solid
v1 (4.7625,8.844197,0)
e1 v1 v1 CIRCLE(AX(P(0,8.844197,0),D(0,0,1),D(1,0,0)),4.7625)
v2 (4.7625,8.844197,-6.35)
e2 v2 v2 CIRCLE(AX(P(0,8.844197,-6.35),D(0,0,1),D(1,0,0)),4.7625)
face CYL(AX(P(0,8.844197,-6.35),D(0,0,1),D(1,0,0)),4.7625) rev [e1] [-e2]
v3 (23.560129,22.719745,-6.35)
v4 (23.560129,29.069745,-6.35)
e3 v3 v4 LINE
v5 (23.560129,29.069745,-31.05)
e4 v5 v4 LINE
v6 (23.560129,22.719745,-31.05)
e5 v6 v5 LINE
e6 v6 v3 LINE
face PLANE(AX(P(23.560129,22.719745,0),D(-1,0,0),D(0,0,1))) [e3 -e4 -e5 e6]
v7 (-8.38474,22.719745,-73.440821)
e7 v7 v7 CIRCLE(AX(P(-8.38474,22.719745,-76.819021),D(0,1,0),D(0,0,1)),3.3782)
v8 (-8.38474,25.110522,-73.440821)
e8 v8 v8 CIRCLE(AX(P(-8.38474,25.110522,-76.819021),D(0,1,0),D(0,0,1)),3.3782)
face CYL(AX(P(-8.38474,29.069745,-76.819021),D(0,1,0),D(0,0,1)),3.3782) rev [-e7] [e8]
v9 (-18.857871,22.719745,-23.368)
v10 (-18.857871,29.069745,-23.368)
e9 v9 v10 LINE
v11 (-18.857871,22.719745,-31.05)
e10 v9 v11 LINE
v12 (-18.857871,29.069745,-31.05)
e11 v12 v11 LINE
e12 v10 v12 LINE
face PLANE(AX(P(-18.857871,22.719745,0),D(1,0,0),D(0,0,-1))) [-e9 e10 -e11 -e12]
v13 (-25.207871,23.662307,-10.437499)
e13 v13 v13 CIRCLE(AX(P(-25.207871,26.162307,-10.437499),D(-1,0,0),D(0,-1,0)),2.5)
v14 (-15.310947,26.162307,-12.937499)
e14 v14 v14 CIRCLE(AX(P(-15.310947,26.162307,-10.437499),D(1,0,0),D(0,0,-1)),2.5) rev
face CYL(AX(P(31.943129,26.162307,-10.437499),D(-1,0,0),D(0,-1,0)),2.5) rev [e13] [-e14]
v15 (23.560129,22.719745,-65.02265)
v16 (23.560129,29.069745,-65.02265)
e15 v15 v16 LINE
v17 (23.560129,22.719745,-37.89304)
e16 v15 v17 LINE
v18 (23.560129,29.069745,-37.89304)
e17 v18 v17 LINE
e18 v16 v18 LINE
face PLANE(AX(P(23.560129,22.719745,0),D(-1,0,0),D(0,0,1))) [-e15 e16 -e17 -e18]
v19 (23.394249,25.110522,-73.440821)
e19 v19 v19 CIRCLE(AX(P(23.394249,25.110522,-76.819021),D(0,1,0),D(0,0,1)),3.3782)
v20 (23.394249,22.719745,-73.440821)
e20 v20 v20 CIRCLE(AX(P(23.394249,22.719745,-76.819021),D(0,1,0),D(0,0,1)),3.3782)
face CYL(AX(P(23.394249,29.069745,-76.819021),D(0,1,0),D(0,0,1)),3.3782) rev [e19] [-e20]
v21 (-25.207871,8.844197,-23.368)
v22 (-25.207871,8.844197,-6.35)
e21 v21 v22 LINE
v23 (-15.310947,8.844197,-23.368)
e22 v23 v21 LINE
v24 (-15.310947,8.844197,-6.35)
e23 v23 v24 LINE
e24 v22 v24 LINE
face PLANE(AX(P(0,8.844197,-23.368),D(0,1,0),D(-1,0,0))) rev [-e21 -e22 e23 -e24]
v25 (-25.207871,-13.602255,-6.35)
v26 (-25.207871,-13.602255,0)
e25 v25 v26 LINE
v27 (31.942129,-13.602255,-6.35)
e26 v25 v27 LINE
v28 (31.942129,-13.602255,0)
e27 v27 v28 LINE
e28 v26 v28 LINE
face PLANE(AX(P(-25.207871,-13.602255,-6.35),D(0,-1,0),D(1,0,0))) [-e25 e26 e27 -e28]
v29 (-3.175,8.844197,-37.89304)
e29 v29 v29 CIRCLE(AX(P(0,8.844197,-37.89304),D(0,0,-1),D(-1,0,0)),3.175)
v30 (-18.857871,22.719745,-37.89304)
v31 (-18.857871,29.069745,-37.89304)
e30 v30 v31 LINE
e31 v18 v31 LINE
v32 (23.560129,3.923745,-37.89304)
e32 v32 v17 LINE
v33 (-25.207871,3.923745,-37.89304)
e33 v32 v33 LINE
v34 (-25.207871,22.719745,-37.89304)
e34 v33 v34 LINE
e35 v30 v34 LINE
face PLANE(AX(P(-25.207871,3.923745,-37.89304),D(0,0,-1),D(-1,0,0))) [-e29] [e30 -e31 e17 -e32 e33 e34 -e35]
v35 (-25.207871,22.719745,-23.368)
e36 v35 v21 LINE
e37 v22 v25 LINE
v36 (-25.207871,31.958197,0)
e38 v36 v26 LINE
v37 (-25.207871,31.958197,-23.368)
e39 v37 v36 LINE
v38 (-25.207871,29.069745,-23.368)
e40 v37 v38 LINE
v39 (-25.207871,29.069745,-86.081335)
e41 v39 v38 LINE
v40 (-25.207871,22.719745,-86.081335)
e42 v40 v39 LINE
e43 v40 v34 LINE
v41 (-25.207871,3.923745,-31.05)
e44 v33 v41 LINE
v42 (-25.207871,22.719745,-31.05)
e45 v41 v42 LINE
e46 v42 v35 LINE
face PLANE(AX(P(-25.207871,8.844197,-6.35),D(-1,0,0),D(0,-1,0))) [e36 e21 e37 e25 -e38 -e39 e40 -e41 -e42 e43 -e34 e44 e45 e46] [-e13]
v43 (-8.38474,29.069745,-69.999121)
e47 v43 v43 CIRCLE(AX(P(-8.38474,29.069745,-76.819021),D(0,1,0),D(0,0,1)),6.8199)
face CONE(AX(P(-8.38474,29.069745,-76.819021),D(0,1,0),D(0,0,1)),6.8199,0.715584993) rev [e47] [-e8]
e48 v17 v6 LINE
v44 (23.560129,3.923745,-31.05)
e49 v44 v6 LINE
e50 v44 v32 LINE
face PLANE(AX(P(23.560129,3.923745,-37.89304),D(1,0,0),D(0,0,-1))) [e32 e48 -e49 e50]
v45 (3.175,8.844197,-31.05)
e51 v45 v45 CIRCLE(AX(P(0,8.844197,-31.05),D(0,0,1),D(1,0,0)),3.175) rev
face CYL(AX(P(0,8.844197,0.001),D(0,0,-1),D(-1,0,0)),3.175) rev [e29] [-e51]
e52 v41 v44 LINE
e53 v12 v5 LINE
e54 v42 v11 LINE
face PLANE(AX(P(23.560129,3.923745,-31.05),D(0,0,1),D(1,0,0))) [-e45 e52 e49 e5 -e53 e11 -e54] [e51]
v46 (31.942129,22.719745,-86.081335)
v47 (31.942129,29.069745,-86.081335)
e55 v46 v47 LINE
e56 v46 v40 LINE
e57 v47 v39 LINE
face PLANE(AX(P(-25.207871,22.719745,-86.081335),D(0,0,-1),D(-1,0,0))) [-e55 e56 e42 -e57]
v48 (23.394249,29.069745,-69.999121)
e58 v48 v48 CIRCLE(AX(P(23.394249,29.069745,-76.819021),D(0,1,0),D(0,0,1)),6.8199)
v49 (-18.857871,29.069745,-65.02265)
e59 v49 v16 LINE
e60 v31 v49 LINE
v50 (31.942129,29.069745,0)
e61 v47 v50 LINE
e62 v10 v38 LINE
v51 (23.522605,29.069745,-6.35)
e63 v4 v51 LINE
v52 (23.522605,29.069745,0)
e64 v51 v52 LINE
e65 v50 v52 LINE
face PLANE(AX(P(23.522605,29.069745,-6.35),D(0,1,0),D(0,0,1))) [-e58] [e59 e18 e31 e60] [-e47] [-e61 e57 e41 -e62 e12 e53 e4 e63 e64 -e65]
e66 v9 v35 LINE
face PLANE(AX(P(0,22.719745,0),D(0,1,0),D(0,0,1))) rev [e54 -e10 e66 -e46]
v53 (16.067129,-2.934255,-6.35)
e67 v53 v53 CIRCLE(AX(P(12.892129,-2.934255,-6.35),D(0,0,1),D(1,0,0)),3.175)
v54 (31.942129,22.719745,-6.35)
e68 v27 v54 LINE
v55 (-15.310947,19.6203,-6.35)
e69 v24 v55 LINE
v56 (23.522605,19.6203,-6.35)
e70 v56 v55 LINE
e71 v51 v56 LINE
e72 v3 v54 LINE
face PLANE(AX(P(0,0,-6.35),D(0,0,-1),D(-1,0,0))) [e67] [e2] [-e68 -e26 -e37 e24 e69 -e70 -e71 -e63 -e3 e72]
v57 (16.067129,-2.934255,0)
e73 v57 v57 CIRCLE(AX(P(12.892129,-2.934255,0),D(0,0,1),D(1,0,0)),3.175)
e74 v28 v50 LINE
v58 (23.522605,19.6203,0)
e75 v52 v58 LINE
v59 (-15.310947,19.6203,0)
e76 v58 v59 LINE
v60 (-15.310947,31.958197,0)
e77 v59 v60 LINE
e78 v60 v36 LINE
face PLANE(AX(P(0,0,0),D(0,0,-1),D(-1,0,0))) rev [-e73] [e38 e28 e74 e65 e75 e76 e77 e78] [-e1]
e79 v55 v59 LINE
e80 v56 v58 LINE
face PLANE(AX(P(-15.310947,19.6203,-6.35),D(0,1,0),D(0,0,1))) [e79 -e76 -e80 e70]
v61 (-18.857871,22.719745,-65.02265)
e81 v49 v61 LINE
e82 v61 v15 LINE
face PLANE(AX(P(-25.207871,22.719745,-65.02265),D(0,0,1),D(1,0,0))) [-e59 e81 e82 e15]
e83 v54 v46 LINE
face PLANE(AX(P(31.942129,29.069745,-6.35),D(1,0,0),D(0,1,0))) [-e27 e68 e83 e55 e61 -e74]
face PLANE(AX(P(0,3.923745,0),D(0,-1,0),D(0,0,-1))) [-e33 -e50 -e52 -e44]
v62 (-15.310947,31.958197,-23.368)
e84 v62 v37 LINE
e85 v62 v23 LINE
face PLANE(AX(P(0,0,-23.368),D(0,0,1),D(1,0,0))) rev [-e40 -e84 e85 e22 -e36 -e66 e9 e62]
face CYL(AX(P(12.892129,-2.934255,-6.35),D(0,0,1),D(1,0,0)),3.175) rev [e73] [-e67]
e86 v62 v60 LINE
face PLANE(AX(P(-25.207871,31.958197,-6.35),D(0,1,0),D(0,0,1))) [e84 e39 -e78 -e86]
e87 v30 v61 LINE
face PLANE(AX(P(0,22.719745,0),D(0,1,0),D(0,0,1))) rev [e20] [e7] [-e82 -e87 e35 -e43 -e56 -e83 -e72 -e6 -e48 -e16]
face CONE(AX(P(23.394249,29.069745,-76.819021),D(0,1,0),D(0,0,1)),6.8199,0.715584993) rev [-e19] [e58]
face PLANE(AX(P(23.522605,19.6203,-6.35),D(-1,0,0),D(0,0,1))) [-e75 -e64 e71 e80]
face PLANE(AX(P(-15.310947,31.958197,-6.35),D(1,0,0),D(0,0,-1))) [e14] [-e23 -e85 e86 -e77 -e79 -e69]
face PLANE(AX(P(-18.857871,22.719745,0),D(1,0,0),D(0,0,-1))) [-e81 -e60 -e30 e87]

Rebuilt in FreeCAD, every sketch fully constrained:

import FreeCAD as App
import Part
import Sketcher
from FreeCAD import Vector
Q = App.Units.Quantity


def add_polygon(sketch, points):
    """Adds a closed chain of lines whose ends are joined by coincident constraints."""
    first, n = sketch.GeometryCount, len(points)
    for a, b in zip(points, points[1:] + points[:1]):
        sketch.addGeometry(Part.LineSegment(App.Vector(*a, 0), App.Vector(*b, 0)), False)
    for i in range(n):
        sketch.addConstraint(Sketcher.Constraint("Coincident", first + i, 2, first + (i + 1) % n, 1))

doc = App.newDocument("Part")
body = doc.addObject("PartDesign::Body", "Body")

# Sketch on XY plane
sketch1 = doc.addObject("Sketcher::SketchObject", "Sketch")
body.addObject(sketch1)
sketch1.AttachmentSupport = (doc.XY_Plane, [""])
sketch1.MapMode = "FlatFace"
add_polygon(sketch1, [(31.942129, 29.069745), (23.522605, 29.069745), (23.522605, 19.6203), (-15.310947, 19.6203), (-15.310947, 31.958197), (-25.207871, 31.958197), (-25.207871, -13.602255), (31.942129, -13.602255)])  # lines 0-7
sketch1.addGeometry(Part.Circle(Vector(12.892129, -2.934255, 0), Vector(0, 0, 1), 3.175), False)  # 8
sketch1.addGeometry(Part.Circle(Vector(0, 8.844197, 0), Vector(0, 0, 1), 4.7625), False)  # 9
sketch1.addConstraint(Sketcher.Constraint("Horizontal", 0))
sketch1.addConstraint(Sketcher.Constraint("Vertical", 1))
sketch1.addConstraint(Sketcher.Constraint("Horizontal", 2))
sketch1.addConstraint(Sketcher.Constraint("Vertical", 3))
sketch1.addConstraint(Sketcher.Constraint("Horizontal", 4))
sketch1.addConstraint(Sketcher.Constraint("Vertical", 5))
sketch1.addConstraint(Sketcher.Constraint("Horizontal", 6))
sketch1.addConstraint(Sketcher.Constraint("Vertical", 7))
sketch1.addConstraint(Sketcher.Constraint("PointOnObject", 9, 3, -2))
sketch1.addConstraint(Sketcher.Constraint("Diameter", 8, Q("0.25 in")))
sketch1.addConstraint(Sketcher.Constraint("Diameter", 9, Q("0.375 in")))
sketch1.addConstraint(Sketcher.Constraint("DistanceX", 6, 1, 6, 2, Q("2.25 in")))
sketch1.addConstraint(Sketcher.Constraint("DistanceY", 7, 1, 7, 2, Q("1.68 in")))
sketch1.addConstraint(Sketcher.Constraint("DistanceX", 5, 2, 8, 3, Q("1.5 in")))
sketch1.addConstraint(Sketcher.Constraint("DistanceY", 8, 3, 0, 2, Q("1.26 in")))
sketch1.addConstraint(Sketcher.Constraint("DistanceY", 9, 3, 3, 2, Q("0.91 in")))
sketch1.addConstraint(Sketcher.Constraint("DistanceY", 5, 2, 5, 1, 45.560452))
sketch1.addConstraint(Sketcher.Constraint("DistanceY", -1, 1, 1, 2, 19.6203))
sketch1.addConstraint(Sketcher.Constraint("DistanceX", 0, 2, 0, 1, 8.419524))
sketch1.addConstraint(Sketcher.Constraint("DistanceX", 2, 2, 2, 1, 38.833552))
sketch1.addConstraint(Sketcher.Constraint("DistanceY", 1, 2, 1, 1, 9.449445))
sketch1.addConstraint(Sketcher.Constraint("DistanceX", -1, 1, 8, 3, 12.892129))
pad1 = doc.addObject("PartDesign::Pad", "Pad")
body.addObject(pad1)
pad1.Profile = sketch1
pad1.Length = Q("0.25 in")
pad1.Reversed = True

# Sketch on XY plane
sketch2 = doc.addObject("Sketcher::SketchObject", "Sketch001")
body.addObject(sketch2)
sketch2.AttachmentSupport = (doc.XY_Plane, [""])
sketch2.MapMode = "FlatFace"
add_polygon(sketch2, [(-15.310947, 31.958197), (-25.207871, 31.958197), (-25.207871, 8.844197), (-15.310947, 8.844197)])  # lines 0-3
sketch2.addConstraint(Sketcher.Constraint("Horizontal", 0))
sketch2.addConstraint(Sketcher.Constraint("Vertical", 1))
sketch2.addConstraint(Sketcher.Constraint("Horizontal", 2))
sketch2.addConstraint(Sketcher.Constraint("Vertical", 3))
sketch2.addConstraint(Sketcher.Constraint("DistanceY", 1, 2, 1, 1, Q("0.91 in")))
sketch2.addConstraint(Sketcher.Constraint("DistanceX", 0, 2, 0, 1, 9.896924))
sketch2.addConstraint(Sketcher.Constraint("DistanceX", 0, 2, -1, 1, 25.207871))
sketch2.addConstraint(Sketcher.Constraint("DistanceY", -1, 1, 0, 2, 31.958197))
pad2 = doc.addObject("PartDesign::Pad", "Pad001")
body.addObject(pad2)
pad2.Profile = sketch2
pad2.Length = Q("0.92 in")
pad2.Reversed = True

# Sketch on XZ plane
sketch3 = doc.addObject("Sketcher::SketchObject", "Sketch002")
body.addObject(sketch3)
sketch3.AttachmentSupport = (doc.XZ_Plane, [""])
sketch3.MapMode = "FlatFace"
sketch3.AttachmentOffset = App.Placement(Vector(0, 0, -29.069745), App.Rotation())
add_polygon(sketch3, [(-25.207871, -78.34), (-25.207871, 0), (-18.857871, 0), (-18.857871, -78.34)])  # lines 0-3
add_polygon(sketch3, [(23.560129, -78.34), (23.560129, 0), (31.942129, 0), (31.942129, -78.34)])  # lines 4-7
sketch3.addConstraint(Sketcher.Constraint("Vertical", 0))
sketch3.addConstraint(Sketcher.Constraint("Horizontal", 1))
sketch3.addConstraint(Sketcher.Constraint("Vertical", 2))
sketch3.addConstraint(Sketcher.Constraint("Horizontal", 3))
sketch3.addConstraint(Sketcher.Constraint("Vertical", 4))
sketch3.addConstraint(Sketcher.Constraint("Horizontal", 5))
sketch3.addConstraint(Sketcher.Constraint("Vertical", 6))
sketch3.addConstraint(Sketcher.Constraint("Horizontal", 7))
sketch3.addConstraint(Sketcher.Constraint("PointOnObject", 0, 2, -1))
sketch3.addConstraint(Sketcher.Constraint("PointOnObject", 4, 2, -1))
sketch3.addConstraint(Sketcher.Constraint("Horizontal", 3, 2, 6, 2))
sketch3.addConstraint(Sketcher.Constraint("DistanceX", 1, 2, 5, 2, Q("2 in")))
sketch3.addConstraint(Sketcher.Constraint("DistanceX", 1, 1, 1, 2, Q("0.25 in")))
sketch3.addConstraint(Sketcher.Constraint("DistanceX", 5, 1, 5, 2, Q("0.33 in")))
sketch3.addConstraint(Sketcher.Constraint("DistanceY", 0, 1, 0, 2, 78.34))
sketch3.addConstraint(Sketcher.Constraint("DistanceX", 0, 2, -1, 1, 25.207871))
pad3 = doc.addObject("PartDesign::Pad", "Pad002")
body.addObject(pad3)
pad3.Profile = sketch3
pad3.Length = Q("0.25 in")

# Sketch on YZ plane
sketch4 = doc.addObject("Sketcher::SketchObject", "Sketch003")
body.addObject(sketch4)
sketch4.AttachmentSupport = (doc.YZ_Plane, [""])
sketch4.MapMode = "FlatFace"
sketch4.AttachmentOffset = App.Placement(Vector(0, 0, -25.207871), App.Rotation())
sketch4.addGeometry(Part.Circle(Vector(26.162307, -10.437499, 0), Vector(0, 0, 1), 2.5), False)
sketch4.addConstraint(Sketcher.Constraint("Diameter", 0, 5.0))
sketch4.addConstraint(Sketcher.Constraint("DistanceY", 0, 3, -1, 1, 10.437499))
sketch4.addConstraint(Sketcher.Constraint("DistanceX", -1, 1, 0, 3, 26.162307))
pocket1 = doc.addObject("PartDesign::Pocket", "Pocket")
body.addObject(pocket1)
pocket1.Profile = sketch4
pocket1.Type = "UpToFirst"
pocket1.Reversed = True

# Sketch on XZ plane
sketch5 = doc.addObject("Sketcher::SketchObject", "Sketch004")
body.addObject(sketch5)
sketch5.AttachmentSupport = (doc.XZ_Plane, [""])
sketch5.MapMode = "FlatFace"
sketch5.AttachmentOffset = App.Placement(Vector(0, 0, -29.069745), App.Rotation())
add_polygon(sketch5, [(-25.207871, -65.02265), (31.942129, -65.02265), (31.942129, -86.081335), (-25.207871, -86.081335)])  # lines 0-3
sketch5.addConstraint(Sketcher.Constraint("Horizontal", 0))
sketch5.addConstraint(Sketcher.Constraint("Vertical", 1))
sketch5.addConstraint(Sketcher.Constraint("Horizontal", 2))
sketch5.addConstraint(Sketcher.Constraint("Vertical", 3))
sketch5.addConstraint(Sketcher.Constraint("DistanceX", 0, 1, 0, 2, Q("2.25 in")))
sketch5.addConstraint(Sketcher.Constraint("DistanceY", 1, 2, 1, 1, 21.058685))
sketch5.addConstraint(Sketcher.Constraint("DistanceX", -1, 1, 0, 2, 31.942129))
sketch5.addConstraint(Sketcher.Constraint("DistanceY", 0, 2, -1, 1, 65.02265))
pad4 = doc.addObject("PartDesign::Pad", "Pad003")
body.addObject(pad4)
pad4.Profile = sketch5
pad4.Length = Q("0.25 in")

# Sketch on XZ plane
sketch6 = doc.addObject("Sketcher::SketchObject", "Sketch005")
body.addObject(sketch6)
sketch6.AttachmentSupport = (doc.XZ_Plane, [""])
sketch6.MapMode = "FlatFace"
sketch6.AttachmentOffset = App.Placement(Vector(0, 0, -29.069745), App.Rotation())
sketch6.addGeometry(Part.Circle(Vector(-8.38474, -76.819021, 0), Vector(0, 0, 1), 3.3782), False)
sketch6.addGeometry(Part.Circle(Vector(23.394249, -76.819021, 0), Vector(0, 0, 1), 3.3782), False)
sketch6.addConstraint(Sketcher.Constraint("Equal", 0, 1))
sketch6.addConstraint(Sketcher.Constraint("Horizontal", 0, 3, 1, 3))
sketch6.addConstraint(Sketcher.Constraint("Diameter", 0, Q("0.266 in")))
sketch6.addConstraint(Sketcher.Constraint("DistanceX", 0, 3, -1, 1, 8.38474))
sketch6.addConstraint(Sketcher.Constraint("DistanceY", 0, 3, -1, 1, 76.819021))
sketch6.addConstraint(Sketcher.Constraint("DistanceX", -1, 1, 1, 3, 23.394249))
doc.recompute()
hole = doc.addObject("PartDesign::Hole", "Hole")
body.addObject(hole)
hole.Profile = sketch6
hole.ThreadType = "None"
hole.Diameter = Q("0.266 in")
hole.DepthType = "ThroughAll"
hole.HoleCutType = "Countersink"
hole.HoleCutDiameter = Q("0.537 in")
hole.HoleCutCountersinkAngle = 82
hole.Reversed = True

# Sketch on XZ plane
sketch7 = doc.addObject("Sketcher::SketchObject", "Sketch006")
body.addObject(sketch7)
sketch7.AttachmentSupport = (doc.XZ_Plane, [""])
sketch7.MapMode = "FlatFace"
sketch7.AttachmentOffset = App.Placement(Vector(0, 0, -29.069745), App.Rotation())
add_polygon(sketch7, [(-25.207871, -37.89304), (-25.207871, -31.05), (23.560129, -31.05), (23.560129, -37.89304)])  # lines 0-3
sketch7.addConstraint(Sketcher.Constraint("Vertical", 0))
sketch7.addConstraint(Sketcher.Constraint("Horizontal", 1))
sketch7.addConstraint(Sketcher.Constraint("Vertical", 2))
sketch7.addConstraint(Sketcher.Constraint("Horizontal", 3))
sketch7.addConstraint(Sketcher.Constraint("DistanceX", 1, 1, 1, 2, Q("1.92 in")))
sketch7.addConstraint(Sketcher.Constraint("DistanceY", 0, 1, 0, 2, 6.84304))
sketch7.addConstraint(Sketcher.Constraint("DistanceY", 0, 2, -1, 1, 31.05))
sketch7.addConstraint(Sketcher.Constraint("DistanceX", 0, 2, -1, 1, 25.207871))
pad5 = doc.addObject("PartDesign::Pad", "Pad004")
body.addObject(pad5)
pad5.Profile = sketch7
pad5.Length = Q("0.99 in")

# Sketch on XY plane
sketch8 = doc.addObject("Sketcher::SketchObject", "Sketch007")
body.addObject(sketch8)
sketch8.AttachmentSupport = (doc.XY_Plane, [""])
sketch8.MapMode = "FlatFace"
sketch8.AttachmentOffset = App.Placement(Vector(0, 0, -37.89304), App.Rotation())
sketch8.addGeometry(Part.Circle(Vector(0, 8.844197, 0), Vector(0, 0, 1), 3.175), False)
sketch8.addConstraint(Sketcher.Constraint("PointOnObject", 0, 3, -2))
sketch8.addConstraint(Sketcher.Constraint("Diameter", 0, Q("0.25 in")))
sketch8.addConstraint(Sketcher.Constraint("DistanceY", -1, 1, 0, 3, 8.844197))
pocket2 = doc.addObject("PartDesign::Pocket", "Pocket001")
body.addObject(pocket2)
pocket2.Profile = sketch8
pocket2.Type = "UpToFirst"
pocket2.Reversed = True

doc.recompute()
